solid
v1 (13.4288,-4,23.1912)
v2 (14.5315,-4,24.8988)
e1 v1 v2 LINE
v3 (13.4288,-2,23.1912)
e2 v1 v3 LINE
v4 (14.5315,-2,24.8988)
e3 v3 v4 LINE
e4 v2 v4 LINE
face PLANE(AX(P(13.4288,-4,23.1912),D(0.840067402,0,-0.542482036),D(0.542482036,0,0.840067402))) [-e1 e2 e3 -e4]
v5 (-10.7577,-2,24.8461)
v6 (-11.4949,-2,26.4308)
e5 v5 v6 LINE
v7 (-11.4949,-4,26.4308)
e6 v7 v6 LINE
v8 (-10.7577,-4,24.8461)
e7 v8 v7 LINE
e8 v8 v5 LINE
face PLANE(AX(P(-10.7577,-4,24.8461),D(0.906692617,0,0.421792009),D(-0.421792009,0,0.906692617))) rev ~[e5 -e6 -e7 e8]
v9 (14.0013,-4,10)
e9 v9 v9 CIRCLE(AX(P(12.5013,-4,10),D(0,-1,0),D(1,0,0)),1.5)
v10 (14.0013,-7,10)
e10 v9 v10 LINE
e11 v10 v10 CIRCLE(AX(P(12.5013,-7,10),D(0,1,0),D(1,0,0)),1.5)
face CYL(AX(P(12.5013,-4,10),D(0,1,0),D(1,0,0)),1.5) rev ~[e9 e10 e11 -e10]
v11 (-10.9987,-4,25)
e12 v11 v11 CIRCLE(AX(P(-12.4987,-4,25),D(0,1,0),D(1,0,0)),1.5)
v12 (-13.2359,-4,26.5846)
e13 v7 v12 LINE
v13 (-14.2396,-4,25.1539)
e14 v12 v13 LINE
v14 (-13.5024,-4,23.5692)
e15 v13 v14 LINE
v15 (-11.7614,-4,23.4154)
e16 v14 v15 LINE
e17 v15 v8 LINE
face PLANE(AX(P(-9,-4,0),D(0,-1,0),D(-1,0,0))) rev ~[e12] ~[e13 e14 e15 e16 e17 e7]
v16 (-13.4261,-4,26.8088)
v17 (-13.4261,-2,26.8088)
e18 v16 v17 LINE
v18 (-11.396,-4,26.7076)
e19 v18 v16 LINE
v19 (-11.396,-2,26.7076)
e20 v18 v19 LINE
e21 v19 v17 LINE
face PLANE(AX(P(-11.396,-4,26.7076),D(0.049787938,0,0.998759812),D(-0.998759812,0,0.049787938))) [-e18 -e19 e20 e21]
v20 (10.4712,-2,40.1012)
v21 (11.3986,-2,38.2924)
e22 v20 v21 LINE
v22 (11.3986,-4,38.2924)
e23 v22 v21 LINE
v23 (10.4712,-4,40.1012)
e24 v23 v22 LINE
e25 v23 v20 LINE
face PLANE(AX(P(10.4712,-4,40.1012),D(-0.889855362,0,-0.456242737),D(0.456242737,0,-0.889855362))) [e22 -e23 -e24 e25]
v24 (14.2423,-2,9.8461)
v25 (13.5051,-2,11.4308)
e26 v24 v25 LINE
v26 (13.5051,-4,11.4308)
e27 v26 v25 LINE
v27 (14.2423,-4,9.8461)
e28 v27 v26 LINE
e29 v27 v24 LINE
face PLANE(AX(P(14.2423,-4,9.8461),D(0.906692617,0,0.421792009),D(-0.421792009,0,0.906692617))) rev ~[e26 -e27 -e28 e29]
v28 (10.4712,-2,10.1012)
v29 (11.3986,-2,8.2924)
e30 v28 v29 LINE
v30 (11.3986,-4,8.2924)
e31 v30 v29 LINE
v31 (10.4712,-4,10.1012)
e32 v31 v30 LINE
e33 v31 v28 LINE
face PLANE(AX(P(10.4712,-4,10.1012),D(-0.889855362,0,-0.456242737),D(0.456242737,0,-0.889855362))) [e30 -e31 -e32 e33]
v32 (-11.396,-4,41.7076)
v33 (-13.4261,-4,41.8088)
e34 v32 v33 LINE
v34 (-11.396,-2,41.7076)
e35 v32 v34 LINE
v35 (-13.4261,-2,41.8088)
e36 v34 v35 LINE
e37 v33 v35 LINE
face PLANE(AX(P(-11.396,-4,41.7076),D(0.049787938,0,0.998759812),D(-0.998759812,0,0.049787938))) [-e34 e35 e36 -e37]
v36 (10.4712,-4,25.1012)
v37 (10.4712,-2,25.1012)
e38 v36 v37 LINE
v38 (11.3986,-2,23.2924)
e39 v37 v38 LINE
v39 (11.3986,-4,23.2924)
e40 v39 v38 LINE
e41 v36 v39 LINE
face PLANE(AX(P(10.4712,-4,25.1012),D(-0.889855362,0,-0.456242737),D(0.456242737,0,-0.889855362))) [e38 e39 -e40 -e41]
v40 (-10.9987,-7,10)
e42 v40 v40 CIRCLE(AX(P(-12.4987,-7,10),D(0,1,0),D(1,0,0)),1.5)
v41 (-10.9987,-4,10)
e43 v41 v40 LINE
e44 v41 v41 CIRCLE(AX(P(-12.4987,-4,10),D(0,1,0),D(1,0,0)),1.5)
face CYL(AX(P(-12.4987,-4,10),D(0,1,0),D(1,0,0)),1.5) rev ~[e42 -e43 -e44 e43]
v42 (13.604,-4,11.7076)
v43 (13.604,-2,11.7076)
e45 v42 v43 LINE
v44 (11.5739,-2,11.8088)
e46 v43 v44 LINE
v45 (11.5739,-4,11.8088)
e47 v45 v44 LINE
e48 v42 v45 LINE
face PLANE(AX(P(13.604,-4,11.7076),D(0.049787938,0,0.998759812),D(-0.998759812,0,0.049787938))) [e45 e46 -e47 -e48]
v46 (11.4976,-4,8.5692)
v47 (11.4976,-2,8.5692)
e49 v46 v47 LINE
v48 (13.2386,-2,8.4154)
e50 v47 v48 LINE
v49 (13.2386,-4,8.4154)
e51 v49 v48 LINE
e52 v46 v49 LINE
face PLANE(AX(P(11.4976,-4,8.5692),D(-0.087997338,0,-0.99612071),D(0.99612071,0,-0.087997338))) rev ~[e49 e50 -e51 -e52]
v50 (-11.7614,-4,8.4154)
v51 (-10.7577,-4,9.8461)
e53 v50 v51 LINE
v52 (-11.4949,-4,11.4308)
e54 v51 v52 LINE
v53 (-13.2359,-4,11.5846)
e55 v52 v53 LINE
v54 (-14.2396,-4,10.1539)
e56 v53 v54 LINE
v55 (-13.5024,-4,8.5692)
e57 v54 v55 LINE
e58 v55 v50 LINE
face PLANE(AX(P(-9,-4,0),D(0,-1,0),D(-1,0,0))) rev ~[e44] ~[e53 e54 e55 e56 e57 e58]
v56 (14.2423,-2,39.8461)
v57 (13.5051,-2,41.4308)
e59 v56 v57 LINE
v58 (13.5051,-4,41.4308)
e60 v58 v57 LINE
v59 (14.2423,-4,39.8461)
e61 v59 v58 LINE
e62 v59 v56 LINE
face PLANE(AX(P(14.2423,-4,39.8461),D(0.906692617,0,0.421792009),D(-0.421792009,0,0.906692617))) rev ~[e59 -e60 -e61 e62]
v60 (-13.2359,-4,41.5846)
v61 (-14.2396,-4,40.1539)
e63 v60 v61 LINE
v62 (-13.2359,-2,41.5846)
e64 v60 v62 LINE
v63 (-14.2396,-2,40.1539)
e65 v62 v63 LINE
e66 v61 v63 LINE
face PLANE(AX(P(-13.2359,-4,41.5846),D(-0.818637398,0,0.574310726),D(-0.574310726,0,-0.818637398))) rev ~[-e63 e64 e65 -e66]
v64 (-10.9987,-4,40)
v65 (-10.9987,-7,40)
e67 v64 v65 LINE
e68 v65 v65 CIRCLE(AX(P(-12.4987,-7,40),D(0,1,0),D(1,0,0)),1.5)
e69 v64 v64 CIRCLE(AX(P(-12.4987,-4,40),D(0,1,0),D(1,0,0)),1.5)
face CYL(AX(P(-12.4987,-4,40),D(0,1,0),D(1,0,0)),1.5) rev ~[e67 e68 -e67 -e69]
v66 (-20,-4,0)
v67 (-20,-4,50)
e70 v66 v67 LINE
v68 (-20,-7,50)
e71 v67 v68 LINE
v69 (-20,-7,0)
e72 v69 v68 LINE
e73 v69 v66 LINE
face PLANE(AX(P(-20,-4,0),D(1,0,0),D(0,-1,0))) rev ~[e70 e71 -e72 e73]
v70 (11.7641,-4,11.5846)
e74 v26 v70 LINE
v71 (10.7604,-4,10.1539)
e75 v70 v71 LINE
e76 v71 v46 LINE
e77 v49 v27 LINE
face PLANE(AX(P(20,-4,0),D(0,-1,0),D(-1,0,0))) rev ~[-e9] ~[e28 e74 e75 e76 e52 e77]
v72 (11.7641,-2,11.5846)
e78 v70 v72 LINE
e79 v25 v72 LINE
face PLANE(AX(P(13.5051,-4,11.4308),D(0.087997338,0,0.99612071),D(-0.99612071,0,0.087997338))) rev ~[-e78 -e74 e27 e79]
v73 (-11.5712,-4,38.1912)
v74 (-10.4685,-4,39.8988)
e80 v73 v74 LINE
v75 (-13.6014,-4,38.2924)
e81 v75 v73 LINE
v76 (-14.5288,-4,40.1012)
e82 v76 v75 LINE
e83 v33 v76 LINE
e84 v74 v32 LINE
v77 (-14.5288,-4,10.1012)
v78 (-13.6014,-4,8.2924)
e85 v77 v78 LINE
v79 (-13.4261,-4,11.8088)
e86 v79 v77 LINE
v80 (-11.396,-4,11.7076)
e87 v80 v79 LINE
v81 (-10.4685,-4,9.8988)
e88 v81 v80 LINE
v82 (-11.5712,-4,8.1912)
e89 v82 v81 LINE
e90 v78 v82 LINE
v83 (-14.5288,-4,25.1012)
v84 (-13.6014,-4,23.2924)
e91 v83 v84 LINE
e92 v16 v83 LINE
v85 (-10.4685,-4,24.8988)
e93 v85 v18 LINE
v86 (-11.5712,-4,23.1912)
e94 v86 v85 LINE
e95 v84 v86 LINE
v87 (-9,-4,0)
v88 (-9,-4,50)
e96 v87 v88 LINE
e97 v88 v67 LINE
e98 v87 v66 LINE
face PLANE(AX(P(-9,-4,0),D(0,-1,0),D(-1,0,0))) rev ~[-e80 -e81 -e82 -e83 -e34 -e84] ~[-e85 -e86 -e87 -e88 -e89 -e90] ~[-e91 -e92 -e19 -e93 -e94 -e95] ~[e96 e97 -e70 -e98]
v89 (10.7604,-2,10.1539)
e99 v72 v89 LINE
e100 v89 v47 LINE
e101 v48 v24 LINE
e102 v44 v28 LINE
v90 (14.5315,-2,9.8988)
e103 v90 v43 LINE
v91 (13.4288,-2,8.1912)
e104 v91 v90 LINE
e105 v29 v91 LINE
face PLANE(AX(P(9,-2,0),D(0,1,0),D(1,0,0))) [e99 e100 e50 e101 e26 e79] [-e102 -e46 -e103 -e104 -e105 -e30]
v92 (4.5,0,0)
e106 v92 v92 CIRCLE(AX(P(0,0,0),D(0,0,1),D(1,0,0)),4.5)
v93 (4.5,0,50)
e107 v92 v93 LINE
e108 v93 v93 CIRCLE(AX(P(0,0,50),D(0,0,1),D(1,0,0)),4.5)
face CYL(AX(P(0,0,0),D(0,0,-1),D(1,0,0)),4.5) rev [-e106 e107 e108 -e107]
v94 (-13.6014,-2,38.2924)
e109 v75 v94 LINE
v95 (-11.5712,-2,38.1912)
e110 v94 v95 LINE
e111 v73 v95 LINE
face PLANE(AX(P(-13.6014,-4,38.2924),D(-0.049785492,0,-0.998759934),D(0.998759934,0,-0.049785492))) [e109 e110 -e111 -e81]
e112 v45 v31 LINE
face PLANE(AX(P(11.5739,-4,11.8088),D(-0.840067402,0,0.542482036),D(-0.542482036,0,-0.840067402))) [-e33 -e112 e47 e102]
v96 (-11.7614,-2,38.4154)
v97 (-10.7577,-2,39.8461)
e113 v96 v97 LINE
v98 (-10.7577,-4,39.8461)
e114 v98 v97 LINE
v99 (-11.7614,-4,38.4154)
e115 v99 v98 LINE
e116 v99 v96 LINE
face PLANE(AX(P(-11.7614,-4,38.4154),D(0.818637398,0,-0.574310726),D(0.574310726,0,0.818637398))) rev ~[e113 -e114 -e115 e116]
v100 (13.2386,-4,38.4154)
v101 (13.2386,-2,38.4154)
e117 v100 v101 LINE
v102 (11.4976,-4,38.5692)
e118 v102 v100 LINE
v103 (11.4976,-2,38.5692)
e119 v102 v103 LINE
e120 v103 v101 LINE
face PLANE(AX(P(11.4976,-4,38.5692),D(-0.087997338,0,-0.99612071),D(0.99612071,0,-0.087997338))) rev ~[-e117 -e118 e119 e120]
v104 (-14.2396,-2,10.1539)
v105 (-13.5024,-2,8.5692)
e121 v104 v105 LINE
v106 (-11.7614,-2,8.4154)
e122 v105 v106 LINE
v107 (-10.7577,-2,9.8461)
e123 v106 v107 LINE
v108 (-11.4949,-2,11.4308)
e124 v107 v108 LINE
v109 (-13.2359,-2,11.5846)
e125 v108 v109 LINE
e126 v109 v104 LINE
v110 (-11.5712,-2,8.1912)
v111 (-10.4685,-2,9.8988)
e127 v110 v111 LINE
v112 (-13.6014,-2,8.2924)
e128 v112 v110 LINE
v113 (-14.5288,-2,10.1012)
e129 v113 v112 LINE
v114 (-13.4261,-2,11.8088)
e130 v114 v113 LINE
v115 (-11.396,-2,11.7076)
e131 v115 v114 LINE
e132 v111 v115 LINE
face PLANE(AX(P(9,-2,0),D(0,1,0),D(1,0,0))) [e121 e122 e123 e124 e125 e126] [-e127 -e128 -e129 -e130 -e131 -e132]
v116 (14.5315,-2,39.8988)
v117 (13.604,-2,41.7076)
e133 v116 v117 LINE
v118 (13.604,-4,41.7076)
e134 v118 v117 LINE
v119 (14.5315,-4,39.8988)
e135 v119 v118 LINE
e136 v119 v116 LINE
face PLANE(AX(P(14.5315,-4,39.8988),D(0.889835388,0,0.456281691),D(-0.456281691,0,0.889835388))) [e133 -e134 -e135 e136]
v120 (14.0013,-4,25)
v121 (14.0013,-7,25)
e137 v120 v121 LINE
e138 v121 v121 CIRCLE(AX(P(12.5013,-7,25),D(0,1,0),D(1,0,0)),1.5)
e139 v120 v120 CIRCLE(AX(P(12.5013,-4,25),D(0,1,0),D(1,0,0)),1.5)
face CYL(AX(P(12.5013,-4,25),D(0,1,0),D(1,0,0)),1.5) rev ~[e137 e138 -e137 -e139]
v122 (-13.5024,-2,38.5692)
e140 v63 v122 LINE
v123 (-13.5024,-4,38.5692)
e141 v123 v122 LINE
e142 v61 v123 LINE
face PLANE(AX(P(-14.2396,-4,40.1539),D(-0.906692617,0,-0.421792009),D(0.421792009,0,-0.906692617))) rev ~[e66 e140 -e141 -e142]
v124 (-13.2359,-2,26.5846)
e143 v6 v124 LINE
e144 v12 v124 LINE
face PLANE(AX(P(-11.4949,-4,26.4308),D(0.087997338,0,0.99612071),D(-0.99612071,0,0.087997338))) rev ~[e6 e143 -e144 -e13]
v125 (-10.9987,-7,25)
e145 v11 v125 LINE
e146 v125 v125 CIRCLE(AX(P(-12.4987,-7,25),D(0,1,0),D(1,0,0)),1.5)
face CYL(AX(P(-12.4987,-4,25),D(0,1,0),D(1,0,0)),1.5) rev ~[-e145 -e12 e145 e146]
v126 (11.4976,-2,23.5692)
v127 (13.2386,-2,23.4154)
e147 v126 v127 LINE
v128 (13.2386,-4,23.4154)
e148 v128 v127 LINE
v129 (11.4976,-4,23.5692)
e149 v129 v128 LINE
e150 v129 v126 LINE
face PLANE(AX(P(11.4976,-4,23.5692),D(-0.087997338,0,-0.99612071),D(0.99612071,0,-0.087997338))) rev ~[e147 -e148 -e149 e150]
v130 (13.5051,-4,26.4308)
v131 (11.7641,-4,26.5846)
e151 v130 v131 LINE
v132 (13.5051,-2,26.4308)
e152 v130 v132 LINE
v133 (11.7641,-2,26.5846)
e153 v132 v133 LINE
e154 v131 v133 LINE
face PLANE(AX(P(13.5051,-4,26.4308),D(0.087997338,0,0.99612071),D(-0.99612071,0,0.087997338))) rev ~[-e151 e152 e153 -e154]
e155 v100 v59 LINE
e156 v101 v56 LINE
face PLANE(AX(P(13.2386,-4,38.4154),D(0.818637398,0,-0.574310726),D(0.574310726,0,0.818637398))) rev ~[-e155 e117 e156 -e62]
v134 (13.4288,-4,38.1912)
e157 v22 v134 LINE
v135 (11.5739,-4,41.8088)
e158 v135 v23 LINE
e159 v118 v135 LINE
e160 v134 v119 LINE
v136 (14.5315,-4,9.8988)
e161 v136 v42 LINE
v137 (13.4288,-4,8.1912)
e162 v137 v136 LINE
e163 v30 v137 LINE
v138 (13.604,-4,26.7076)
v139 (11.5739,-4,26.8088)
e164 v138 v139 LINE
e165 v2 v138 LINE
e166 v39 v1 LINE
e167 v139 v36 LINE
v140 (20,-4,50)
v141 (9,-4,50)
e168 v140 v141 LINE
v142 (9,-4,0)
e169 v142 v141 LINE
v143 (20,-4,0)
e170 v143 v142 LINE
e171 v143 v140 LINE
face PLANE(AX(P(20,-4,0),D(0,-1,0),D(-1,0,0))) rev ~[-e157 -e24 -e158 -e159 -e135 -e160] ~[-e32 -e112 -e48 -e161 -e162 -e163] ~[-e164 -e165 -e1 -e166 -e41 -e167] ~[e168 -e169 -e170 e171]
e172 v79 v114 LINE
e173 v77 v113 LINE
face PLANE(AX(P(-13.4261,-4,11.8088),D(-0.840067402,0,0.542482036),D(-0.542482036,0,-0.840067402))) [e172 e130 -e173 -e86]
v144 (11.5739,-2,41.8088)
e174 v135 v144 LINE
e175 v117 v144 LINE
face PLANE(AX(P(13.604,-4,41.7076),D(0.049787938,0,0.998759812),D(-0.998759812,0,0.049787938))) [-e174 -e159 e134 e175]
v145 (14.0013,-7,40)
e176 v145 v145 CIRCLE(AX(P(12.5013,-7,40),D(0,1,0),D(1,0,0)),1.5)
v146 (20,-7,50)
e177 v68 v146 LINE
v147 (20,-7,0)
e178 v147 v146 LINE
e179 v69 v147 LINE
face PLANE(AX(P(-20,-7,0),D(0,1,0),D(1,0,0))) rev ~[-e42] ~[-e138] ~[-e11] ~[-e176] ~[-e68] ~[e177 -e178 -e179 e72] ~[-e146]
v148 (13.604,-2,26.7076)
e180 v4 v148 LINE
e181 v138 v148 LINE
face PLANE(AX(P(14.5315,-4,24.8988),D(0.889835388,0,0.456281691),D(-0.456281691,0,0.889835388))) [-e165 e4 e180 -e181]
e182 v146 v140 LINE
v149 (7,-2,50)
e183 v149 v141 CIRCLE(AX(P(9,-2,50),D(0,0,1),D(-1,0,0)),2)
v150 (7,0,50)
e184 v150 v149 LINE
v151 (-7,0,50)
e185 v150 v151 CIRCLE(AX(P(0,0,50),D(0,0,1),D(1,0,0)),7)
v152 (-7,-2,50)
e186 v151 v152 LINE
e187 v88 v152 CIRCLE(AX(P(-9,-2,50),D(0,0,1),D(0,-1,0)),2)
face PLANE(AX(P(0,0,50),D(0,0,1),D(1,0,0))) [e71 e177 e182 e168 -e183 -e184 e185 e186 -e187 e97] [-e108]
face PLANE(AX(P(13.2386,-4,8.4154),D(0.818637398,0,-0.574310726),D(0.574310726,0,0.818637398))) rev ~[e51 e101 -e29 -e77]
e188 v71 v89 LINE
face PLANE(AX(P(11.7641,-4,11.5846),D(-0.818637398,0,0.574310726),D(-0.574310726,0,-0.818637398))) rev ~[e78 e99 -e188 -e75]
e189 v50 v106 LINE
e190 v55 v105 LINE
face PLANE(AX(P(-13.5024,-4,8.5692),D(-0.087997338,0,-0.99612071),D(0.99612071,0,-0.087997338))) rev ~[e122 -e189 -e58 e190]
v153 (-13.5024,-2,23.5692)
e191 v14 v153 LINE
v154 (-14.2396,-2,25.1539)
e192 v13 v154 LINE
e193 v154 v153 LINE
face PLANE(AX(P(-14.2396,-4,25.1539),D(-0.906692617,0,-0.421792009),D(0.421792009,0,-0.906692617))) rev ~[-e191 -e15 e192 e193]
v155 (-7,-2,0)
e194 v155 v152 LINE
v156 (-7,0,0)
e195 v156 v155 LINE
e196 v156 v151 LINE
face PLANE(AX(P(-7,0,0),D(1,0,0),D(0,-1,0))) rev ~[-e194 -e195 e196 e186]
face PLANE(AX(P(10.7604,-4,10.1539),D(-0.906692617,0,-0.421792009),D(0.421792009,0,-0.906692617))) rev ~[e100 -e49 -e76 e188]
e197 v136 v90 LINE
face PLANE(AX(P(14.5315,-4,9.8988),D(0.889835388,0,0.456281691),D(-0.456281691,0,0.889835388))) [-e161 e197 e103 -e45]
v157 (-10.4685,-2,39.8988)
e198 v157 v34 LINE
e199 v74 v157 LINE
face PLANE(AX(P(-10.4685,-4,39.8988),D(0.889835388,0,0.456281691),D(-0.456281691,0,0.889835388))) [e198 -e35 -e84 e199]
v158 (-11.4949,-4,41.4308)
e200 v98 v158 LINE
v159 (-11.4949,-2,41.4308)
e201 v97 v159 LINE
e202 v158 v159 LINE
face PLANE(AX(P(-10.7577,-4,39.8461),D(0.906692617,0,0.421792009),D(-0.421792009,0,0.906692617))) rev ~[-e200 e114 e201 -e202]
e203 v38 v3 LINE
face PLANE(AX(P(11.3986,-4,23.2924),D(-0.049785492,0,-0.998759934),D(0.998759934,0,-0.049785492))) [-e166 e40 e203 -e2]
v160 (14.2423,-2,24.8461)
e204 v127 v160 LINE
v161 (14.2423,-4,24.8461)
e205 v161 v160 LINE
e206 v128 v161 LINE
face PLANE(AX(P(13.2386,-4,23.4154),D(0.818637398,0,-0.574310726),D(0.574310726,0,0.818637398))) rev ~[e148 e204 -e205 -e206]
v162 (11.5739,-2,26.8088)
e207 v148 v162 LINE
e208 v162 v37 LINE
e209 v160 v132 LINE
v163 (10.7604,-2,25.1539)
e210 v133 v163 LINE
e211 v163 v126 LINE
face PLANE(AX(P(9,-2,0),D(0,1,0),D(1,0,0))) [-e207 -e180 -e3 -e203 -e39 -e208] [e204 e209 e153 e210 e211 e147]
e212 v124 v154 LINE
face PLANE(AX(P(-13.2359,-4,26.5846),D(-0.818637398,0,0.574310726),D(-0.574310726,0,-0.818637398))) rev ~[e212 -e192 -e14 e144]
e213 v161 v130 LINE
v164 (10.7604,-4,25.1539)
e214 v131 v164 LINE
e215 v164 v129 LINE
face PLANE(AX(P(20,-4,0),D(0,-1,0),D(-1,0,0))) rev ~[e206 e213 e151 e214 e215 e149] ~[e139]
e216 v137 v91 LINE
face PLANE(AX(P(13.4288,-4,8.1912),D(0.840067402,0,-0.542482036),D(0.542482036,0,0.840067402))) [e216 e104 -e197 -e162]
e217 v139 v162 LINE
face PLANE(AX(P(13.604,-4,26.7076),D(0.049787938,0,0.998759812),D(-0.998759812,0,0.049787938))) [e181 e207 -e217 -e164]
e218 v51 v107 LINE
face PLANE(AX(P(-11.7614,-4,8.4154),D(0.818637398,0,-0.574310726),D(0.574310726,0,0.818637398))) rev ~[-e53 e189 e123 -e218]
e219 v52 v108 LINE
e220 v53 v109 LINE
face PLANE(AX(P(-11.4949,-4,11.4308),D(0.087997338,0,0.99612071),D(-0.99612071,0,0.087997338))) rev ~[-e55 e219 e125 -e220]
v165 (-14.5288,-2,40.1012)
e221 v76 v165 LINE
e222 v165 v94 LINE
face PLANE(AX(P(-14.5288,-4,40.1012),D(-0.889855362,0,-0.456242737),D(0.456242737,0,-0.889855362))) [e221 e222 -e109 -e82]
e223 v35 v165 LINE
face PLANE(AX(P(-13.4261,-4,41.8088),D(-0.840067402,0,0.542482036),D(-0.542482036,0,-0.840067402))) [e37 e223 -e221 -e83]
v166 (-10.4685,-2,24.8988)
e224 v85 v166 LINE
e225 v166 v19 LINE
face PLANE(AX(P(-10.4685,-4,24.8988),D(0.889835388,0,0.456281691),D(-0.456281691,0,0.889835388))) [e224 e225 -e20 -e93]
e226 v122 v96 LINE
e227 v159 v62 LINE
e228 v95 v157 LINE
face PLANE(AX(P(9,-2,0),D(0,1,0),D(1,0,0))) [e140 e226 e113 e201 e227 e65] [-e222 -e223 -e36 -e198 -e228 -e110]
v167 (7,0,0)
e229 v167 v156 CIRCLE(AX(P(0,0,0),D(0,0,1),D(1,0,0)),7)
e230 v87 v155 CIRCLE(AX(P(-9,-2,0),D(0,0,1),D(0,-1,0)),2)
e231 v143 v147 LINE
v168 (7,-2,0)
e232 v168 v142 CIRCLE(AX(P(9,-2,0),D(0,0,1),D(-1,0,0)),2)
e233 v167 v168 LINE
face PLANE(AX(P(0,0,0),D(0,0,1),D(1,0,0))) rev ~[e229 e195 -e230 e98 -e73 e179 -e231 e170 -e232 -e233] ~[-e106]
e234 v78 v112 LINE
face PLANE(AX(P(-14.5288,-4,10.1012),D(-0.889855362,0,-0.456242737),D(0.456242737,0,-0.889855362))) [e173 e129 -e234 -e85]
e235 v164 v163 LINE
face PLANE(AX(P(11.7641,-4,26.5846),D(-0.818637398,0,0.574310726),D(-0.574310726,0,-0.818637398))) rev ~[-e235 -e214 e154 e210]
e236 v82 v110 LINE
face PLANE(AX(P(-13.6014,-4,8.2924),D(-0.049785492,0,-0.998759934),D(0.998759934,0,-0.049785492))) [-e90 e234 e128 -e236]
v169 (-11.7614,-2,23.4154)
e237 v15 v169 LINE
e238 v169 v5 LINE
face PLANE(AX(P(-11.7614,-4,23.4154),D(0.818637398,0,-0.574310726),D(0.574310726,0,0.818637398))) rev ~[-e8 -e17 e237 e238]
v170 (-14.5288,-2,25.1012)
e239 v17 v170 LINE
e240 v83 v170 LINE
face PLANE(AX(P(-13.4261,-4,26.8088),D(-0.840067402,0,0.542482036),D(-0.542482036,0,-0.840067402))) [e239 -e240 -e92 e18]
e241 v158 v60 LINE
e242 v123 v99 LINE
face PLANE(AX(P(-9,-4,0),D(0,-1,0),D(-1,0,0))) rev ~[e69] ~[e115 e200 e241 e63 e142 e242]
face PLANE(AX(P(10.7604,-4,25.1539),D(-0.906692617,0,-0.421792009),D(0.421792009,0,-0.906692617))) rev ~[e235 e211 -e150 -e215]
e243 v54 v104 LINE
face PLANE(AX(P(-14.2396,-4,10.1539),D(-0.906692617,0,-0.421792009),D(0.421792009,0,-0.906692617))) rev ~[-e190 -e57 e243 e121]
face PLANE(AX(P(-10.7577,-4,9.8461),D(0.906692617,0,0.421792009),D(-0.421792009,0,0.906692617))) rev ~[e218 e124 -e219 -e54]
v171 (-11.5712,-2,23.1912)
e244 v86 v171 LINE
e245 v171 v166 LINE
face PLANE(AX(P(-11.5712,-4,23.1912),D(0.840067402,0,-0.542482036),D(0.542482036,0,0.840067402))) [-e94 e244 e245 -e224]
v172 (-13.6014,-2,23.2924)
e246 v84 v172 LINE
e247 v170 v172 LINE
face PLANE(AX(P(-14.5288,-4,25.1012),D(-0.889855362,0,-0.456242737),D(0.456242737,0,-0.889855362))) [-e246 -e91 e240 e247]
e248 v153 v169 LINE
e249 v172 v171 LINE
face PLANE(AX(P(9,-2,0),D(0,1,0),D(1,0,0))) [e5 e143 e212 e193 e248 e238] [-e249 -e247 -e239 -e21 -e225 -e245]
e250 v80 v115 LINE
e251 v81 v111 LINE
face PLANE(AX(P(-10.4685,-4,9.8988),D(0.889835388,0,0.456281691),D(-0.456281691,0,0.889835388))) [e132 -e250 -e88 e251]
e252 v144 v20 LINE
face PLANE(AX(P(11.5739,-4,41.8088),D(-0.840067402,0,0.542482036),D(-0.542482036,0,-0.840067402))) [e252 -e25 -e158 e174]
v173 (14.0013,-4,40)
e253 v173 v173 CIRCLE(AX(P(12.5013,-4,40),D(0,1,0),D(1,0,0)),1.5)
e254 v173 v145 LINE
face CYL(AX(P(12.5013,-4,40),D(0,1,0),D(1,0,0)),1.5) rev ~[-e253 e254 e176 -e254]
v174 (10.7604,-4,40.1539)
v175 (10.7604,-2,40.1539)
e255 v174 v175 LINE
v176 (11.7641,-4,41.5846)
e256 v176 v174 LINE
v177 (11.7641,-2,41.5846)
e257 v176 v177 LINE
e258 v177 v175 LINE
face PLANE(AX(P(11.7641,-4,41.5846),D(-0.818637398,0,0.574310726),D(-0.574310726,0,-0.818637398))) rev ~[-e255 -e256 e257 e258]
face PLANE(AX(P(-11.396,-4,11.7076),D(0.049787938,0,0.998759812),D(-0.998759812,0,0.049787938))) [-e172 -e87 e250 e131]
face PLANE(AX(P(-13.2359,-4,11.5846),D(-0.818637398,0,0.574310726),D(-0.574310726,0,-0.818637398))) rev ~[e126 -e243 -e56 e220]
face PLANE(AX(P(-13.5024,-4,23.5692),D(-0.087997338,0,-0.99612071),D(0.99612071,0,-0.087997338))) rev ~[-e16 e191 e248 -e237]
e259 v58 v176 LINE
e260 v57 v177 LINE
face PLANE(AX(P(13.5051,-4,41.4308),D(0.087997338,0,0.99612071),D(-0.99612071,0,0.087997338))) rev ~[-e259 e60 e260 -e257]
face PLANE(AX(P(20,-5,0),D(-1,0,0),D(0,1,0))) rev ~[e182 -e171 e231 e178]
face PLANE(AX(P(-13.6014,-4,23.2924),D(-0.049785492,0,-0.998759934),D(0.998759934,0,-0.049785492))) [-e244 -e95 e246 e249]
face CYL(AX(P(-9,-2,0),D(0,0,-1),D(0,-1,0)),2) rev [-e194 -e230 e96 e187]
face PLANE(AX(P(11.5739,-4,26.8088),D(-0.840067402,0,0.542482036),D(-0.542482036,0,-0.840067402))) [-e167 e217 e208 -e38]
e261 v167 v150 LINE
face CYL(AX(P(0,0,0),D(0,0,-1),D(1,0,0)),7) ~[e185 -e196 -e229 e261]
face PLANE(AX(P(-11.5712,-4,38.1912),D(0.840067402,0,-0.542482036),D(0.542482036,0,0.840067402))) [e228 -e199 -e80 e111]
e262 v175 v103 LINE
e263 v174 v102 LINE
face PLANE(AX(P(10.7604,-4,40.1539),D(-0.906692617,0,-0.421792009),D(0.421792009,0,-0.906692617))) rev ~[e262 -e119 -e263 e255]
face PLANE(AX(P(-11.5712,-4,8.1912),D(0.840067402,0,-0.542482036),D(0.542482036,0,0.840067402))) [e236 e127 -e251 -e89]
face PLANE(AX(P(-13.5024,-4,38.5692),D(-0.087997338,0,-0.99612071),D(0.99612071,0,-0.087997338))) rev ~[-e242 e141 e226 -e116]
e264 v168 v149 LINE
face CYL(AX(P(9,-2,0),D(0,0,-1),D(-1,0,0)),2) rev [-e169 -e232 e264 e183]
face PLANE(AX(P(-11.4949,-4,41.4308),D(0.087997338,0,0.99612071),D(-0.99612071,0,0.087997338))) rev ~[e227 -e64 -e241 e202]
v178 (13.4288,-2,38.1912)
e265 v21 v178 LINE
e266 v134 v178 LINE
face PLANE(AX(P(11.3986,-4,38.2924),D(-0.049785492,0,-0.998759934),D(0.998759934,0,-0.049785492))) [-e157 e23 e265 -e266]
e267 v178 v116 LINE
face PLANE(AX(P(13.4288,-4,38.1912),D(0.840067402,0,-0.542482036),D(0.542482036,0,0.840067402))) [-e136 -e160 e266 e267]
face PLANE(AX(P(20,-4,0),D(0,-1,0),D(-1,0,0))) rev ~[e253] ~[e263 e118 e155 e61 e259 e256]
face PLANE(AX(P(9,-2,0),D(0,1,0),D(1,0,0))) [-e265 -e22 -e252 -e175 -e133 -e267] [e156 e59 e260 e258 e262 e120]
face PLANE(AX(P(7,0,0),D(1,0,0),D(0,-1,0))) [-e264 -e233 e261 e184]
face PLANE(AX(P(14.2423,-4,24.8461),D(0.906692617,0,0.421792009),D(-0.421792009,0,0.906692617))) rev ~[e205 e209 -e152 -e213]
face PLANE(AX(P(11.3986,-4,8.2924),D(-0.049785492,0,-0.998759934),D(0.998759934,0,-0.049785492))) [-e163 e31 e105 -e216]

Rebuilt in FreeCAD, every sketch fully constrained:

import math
import FreeCAD as App
import Part
import Sketcher

V = App.Vector
Q = App.Units.Quantity

doc = App.newDocument("Part")
body = doc.addObject("PartDesign::Body", "Body")

# Sketch on XY plane
sketch1 = body.newObject("Sketcher::SketchObject", "Sketch")
sketch1.AttachmentSupport = (doc.getObject("XY_Plane"), [""])
sketch1.MapMode = "FlatFace"
sketch1.addGeometry([
    Part.ArcOfCircle(Part.Circle(V(-9, -2, 0), V(0, 0, 1), 2), math.radians(-90), math.radians(0)),  # 0
    Part.LineSegment(V(-9, -4, 0), V(-20, -4, 0)),  # 1
    Part.LineSegment(V(-20, -4, 0), V(-20, -7, 0)),  # 2
    Part.LineSegment(V(-20, -7, 0), V(20, -7, 0)),  # 3
    Part.LineSegment(V(20, -7, 0), V(20, -4, 0)),  # 4
    Part.LineSegment(V(20, -4, 0), V(9, -4, 0)),  # 5
    Part.ArcOfCircle(Part.Circle(V(9, -2, 0), V(0, 0, 1), 2), math.radians(180), math.radians(270)),  # 6
    Part.LineSegment(V(7, -2, 0), V(7, 0, 0)),  # 7
    Part.ArcOfCircle(Part.Circle(V(0, 0, 0), V(0, 0, 1), 7), math.radians(0), math.radians(180)),  # 8
    Part.LineSegment(V(-7, 0, 0), V(-7, -2, 0)),  # 9
    Part.Circle(V(0, 0, 0), V(0, 0, 1), 4.5),  # 10
], False)
sketch1.addConstraint([
    Sketcher.Constraint("Tangent", 0, 1, 1, 1),
    Sketcher.Constraint("Coincident", 1, 2, 2, 1),
    Sketcher.Constraint("Coincident", 2, 2, 3, 1),
    Sketcher.Constraint("Coincident", 3, 2, 4, 1),
    Sketcher.Constraint("Coincident", 4, 2, 5, 1),
    Sketcher.Constraint("Tangent", 5, 2, 6, 2),
    Sketcher.Constraint("Tangent", 6, 1, 7, 1),
    Sketcher.Constraint("Tangent", 7, 2, 8, 1),
    Sketcher.Constraint("Tangent", 8, 2, 9, 1),
    Sketcher.Constraint("Tangent", 9, 2, 0, 2),
    Sketcher.Constraint("Horizontal", 1),
    Sketcher.Constraint("Vertical", 2),
    Sketcher.Constraint("Horizontal", 3),
    Sketcher.Constraint("Vertical", 4),
    Sketcher.Constraint("Horizontal", 5),
    Sketcher.Constraint("Vertical", 7),
    Sketcher.Constraint("Vertical", 9),
    Sketcher.Constraint("Coincident", 8, 3, -1, 1),
    Sketcher.Constraint("Coincident", 10, 3, -1, 1),
    Sketcher.Constraint("Equal", 0, 6),
    Sketcher.Constraint("Symmetric", 1, 2, 4, 2, -2),
    Sketcher.Constraint("Diameter", 10, Q("9 mm")),
    Sketcher.Constraint("Radius", 0, Q("2 mm")),
    Sketcher.Constraint("Radius", 8, Q("7 mm")),
    Sketcher.Constraint("DistanceY", 7, 1, 7, 2, Q("2 mm")),
    Sketcher.Constraint("DistanceX", 1, 2, 1, 1, Q("11 mm")),
    Sketcher.Constraint("DistanceY", 2, 2, 2, 1, Q("3 mm")),
])
pad1 = body.newObject("PartDesign::Pad", "Pad")
pad1.Profile = sketch1
pad1.Length = 50

# Sketch on XZ plane
sketch2 = body.newObject("Sketcher::SketchObject", "Sketch001")
sketch2.AttachmentSupport = (doc.getObject("XZ_Plane"), [""])
sketch2.MapMode = "FlatFace"
sketch2.AttachmentOffset = App.Placement(V(0, 0, 4), App.Rotation())
sketch2.addGeometry(Part.Circle(V(-12.5, 10, 0), V(0, 0, 1), 1.5), False)
sketch2.addConstraint([
    Sketcher.Constraint("Diameter", 0, Q("3 mm")),
    Sketcher.Constraint("DistanceY", -1, 1, 0, 3, Q("10 mm")),
    Sketcher.Constraint("DistanceX", 0, 3, -1, 1, Q("12.4987 mm")),
])
pocket1 = body.newObject("PartDesign::Pocket", "Pocket")
pocket1.Profile = sketch2
pocket1.Length = 3
pocket1.Reversed = True

# Sketch on XZ plane
sketch3 = body.newObject("Sketcher::SketchObject", "Sketch002")
sketch3.AttachmentSupport = (doc.getObject("XZ_Plane"), [""])
sketch3.MapMode = "FlatFace"
sketch3.AttachmentOffset = App.Placement(V(0, 0, 4), App.Rotation())
sketch3.addGeometry([
    Part.Circle(V(-12.5, 25, 0), V(0, 0, 1), 1.5),  # 0
    Part.Circle(V(-12.5, 40, 0), V(0, 0, 1), 1.5),  # 1
    Part.Circle(V(12.5, 10, 0), V(0, 0, 1), 1.5),  # 2
    Part.Circle(V(12.5, 25, 0), V(0, 0, 1), 1.5),  # 3
    Part.Circle(V(12.5, 40, 0), V(0, 0, 1), 1.5),  # 4
], False)
sketch3.addConstraint([
    Sketcher.Constraint("Equal", 0, 1),
    Sketcher.Constraint("Equal", 1, 2),
    Sketcher.Constraint("Equal", 2, 3),
    Sketcher.Constraint("Equal", 3, 4),
    Sketcher.Constraint("Horizontal", 0, 3, 3, 3),
    Sketcher.Constraint("Horizontal", 1, 3, 4, 3),
    Sketcher.Constraint("Vertical", 0, 3, 1, 3),
    Sketcher.Constraint("Vertical", 2, 3, 3, 3),
    Sketcher.Constraint("Vertical", 3, 3, 4, 3),
    Sketcher.Constraint("Diameter", 0, Q("3 mm")),
    Sketcher.Constraint("DistanceY", -1, 1, 0, 3, Q("25 mm")),
    Sketcher.Constraint("DistanceY", 0, 3, 1, 3, Q("15 mm")),
    Sketcher.Constraint("DistanceX", 0, 3, 2, 3, Q("25 mm")),
    Sketcher.Constraint("DistanceY", 2, 3, 0, 3, Q("15 mm")),
    Sketcher.Constraint("DistanceX", 0, 3, -1, 1, Q("12.4987 mm")),
])
pocket2 = body.newObject("PartDesign::Pocket", "Pocket001")
pocket2.Profile = sketch3
pocket2.Length = 3
pocket2.Reversed = True

# Sketch on XZ plane
sketch4 = body.newObject("Sketcher::SketchObject", "Sketch003")
sketch4.AttachmentSupport = (doc.getObject("XZ_Plane"), [""])
sketch4.MapMode = "FlatFace"
sketch4.AttachmentOffset = App.Placement(V(0, 0, 4), App.Rotation())
sketch4.addGeometry([
    Part.LineSegment(V(13.4288, 8.1912, 0), V(11.3986, 8.2924, 0)),  # 0
    Part.LineSegment(V(11.3986, 8.2924, 0), V(10.4712, 10.1012, 0)),  # 1
    Part.LineSegment(V(10.4712, 10.1012, 0), V(11.5739, 11.8088, 0)),  # 2
    Part.LineSegment(V(11.5739, 11.8088, 0), V(13.604, 11.7076, 0)),  # 3
    Part.LineSegment(V(13.604, 11.7076, 0), V(14.5315, 9.8988, 0)),  # 4
    Part.LineSegment(V(14.5315, 9.8988, 0), V(13.4288, 8.1912, 0)),  # 5
    Part.LineSegment(V(13.2386, 8.4154, 0), V(14.2423, 9.8461, 0)),  # 6
    Part.LineSegment(V(14.2423, 9.8461, 0), V(13.5051, 11.4308, 0)),  # 7
    Part.LineSegment(V(13.5051, 11.4308, 0), V(11.7641, 11.5846, 0)),  # 8
    Part.LineSegment(V(11.7641, 11.5846, 0), V(10.7604, 10.1539, 0)),  # 9
    Part.LineSegment(V(10.7604, 10.1539, 0), V(11.4976, 8.5692, 0)),  # 10
    Part.LineSegment(V(11.4976, 8.5692, 0), V(13.2386, 8.4154, 0)),  # 11
    Part.LineSegment(V(11.3986, 23.2924, 0), V(10.4712, 25.1012, 0)),  # 12
    Part.LineSegment(V(10.4712, 25.1012, 0), V(11.5739, 26.8088, 0)),  # 13
    Part.LineSegment(V(11.5739, 26.8088, 0), V(13.604, 26.7076, 0)),  # 14
    Part.LineSegment(V(13.604, 26.7076, 0), V(14.5315, 24.8988, 0)),  # 15
    Part.LineSegment(V(14.5315, 24.8988, 0), V(13.4288, 23.1912, 0)),  # 16
    Part.LineSegment(V(13.4288, 23.1912, 0), V(11.3986, 23.2924, 0)),  # 17
    Part.LineSegment(V(11.4976, 23.5692, 0), V(13.2386, 23.4154, 0)),  # 18
    Part.LineSegment(V(13.2386, 23.4154, 0), V(14.2423, 24.8461, 0)),  # 19
    Part.LineSegment(V(14.2423, 24.8461, 0), V(13.5051, 26.4308, 0)),  # 20
    Part.LineSegment(V(13.5051, 26.4308, 0), V(11.7641, 26.5846, 0)),  # 21
    Part.LineSegment(V(11.7641, 26.5846, 0), V(10.7604, 25.1539, 0)),  # 22
    Part.LineSegment(V(10.7604, 25.1539, 0), V(11.4976, 23.5692, 0)),  # 23
    Part.LineSegment(V(11.3986, 38.2924, 0), V(10.4712, 40.1012, 0)),  # 24
    Part.LineSegment(V(10.4712, 40.1012, 0), V(11.5739, 41.8088, 0)),  # 25
    Part.LineSegment(V(11.5739, 41.8088, 0), V(13.604, 41.7076, 0)),  # 26
    Part.LineSegment(V(13.604, 41.7076, 0), V(14.5315, 39.8988, 0)),  # 27
    Part.LineSegment(V(14.5315, 39.8988, 0), V(13.4288, 38.1912, 0)),  # 28
    Part.LineSegment(V(13.4288, 38.1912, 0), V(11.3986, 38.2924, 0)),  # 29
    Part.LineSegment(V(11.4976, 38.5692, 0), V(13.2386, 38.4154, 0)),  # 30
    Part.LineSegment(V(13.2386, 38.4154, 0), V(14.2423, 39.8461, 0)),  # 31
    Part.LineSegment(V(14.2423, 39.8461, 0), V(13.5051, 41.4308, 0)),  # 32
    Part.LineSegment(V(13.5051, 41.4308, 0), V(11.7641, 41.5846, 0)),  # 33
    Part.LineSegment(V(11.7641, 41.5846, 0), V(10.7604, 40.1539, 0)),  # 34
    Part.LineSegment(V(10.7604, 40.1539, 0), V(11.4976, 38.5692, 0)),  # 35
    Part.LineSegment(V(-13.6014, 8.2924, 0), V(-14.5288, 10.1012, 0)),  # 36
    Part.LineSegment(V(-14.5288, 10.1012, 0), V(-13.4261, 11.8088, 0)),  # 37
    Part.LineSegment(V(-13.4261, 11.8088, 0), V(-11.396, 11.7076, 0)),  # 38
    Part.LineSegment(V(-11.396, 11.7076, 0), V(-10.4685, 9.8988, 0)),  # 39
    Part.LineSegment(V(-10.4685, 9.8988, 0), V(-11.5712, 8.1912, 0)),  # 40
    Part.LineSegment(V(-11.5712, 8.1912, 0), V(-13.6014, 8.2924, 0)),  # 41
    Part.LineSegment(V(-13.5024, 8.5692, 0), V(-11.7614, 8.4154, 0)),  # 42
    Part.LineSegment(V(-11.7614, 8.4154, 0), V(-10.7577, 9.8461, 0)),  # 43
    Part.LineSegment(V(-10.7577, 9.8461, 0), V(-11.4949, 11.4308, 0)),  # 44
    Part.LineSegment(V(-11.4949, 11.4308, 0), V(-13.2359, 11.5846, 0)),  # 45
    Part.LineSegment(V(-13.2359, 11.5846, 0), V(-14.2396, 10.1539, 0)),  # 46
    Part.LineSegment(V(-14.2396, 10.1539, 0), V(-13.5024, 8.5692, 0)),  # 47
    Part.LineSegment(V(-13.6014, 23.2924, 0), V(-14.5288, 25.1012, 0)),  # 48
    Part.LineSegment(V(-14.5288, 25.1012, 0), V(-13.4261, 26.8088, 0)),  # 49
    Part.LineSegment(V(-13.4261, 26.8088, 0), V(-11.396, 26.7076, 0)),  # 50
    Part.LineSegment(V(-11.396, 26.7076, 0), V(-10.4685, 24.8988, 0)),  # 51
    Part.LineSegment(V(-10.4685, 24.8988, 0), V(-11.5712, 23.1912, 0)),  # 52
    Part.LineSegment(V(-11.5712, 23.1912, 0), V(-13.6014, 23.2924, 0)),  # 53
    Part.LineSegment(V(-13.5024, 23.5692, 0), V(-11.7614, 23.4154, 0)),  # 54
    Part.LineSegment(V(-11.7614, 23.4154, 0), V(-10.7577, 24.8461, 0)),  # 55
    Part.LineSegment(V(-10.7577, 24.8461, 0), V(-11.4949, 26.4308, 0)),  # 56
    Part.LineSegment(V(-11.4949, 26.4308, 0), V(-13.2359, 26.5846, 0)),  # 57
    Part.LineSegment(V(-13.2359, 26.5846, 0), V(-14.2396, 25.1539, 0)),  # 58
    Part.LineSegment(V(-14.2396, 25.1539, 0), V(-13.5024, 23.5692, 0)),  # 59
    Part.LineSegment(V(-13.6014, 38.2924, 0), V(-14.5288, 40.1012, 0)),  # 60
    Part.LineSegment(V(-14.5288, 40.1012, 0), V(-13.4261, 41.8088, 0)),  # 61
    Part.LineSegment(V(-13.4261, 41.8088, 0), V(-11.396, 41.7076, 0)),  # 62
    Part.LineSegment(V(-11.396, 41.7076, 0), V(-10.4685, 39.8988, 0)),  # 63
    Part.LineSegment(V(-10.4685, 39.8988, 0), V(-11.5712, 38.1912, 0)),  # 64
    Part.LineSegment(V(-11.5712, 38.1912, 0), V(-13.6014, 38.2924, 0)),  # 65
    Part.LineSegment(V(-13.5024, 38.5692, 0), V(-11.7614, 38.4154, 0)),  # 66
    Part.LineSegment(V(-11.7614, 38.4154, 0), V(-10.7577, 39.8461, 0)),  # 67
    Part.LineSegment(V(-10.7577, 39.8461, 0), V(-11.4949, 41.4308, 0)),  # 68
    Part.LineSegment(V(-11.4949, 41.4308, 0), V(-13.2359, 41.5846, 0)),  # 69
    Part.LineSegment(V(-13.2359, 41.5846, 0), V(-14.2396, 40.1539, 0)),  # 70
    Part.LineSegment(V(-14.2396, 40.1539, 0), V(-13.5024, 38.5692, 0)),  # 71
], False)
sketch4.addConstraint([
    Sketcher.Constraint("Coincident", 0, 2, 1, 1),
    Sketcher.Constraint("Coincident", 1, 2, 2, 1),
    Sketcher.Constraint("Coincident", 2, 2, 3, 1),
    Sketcher.Constraint("Coincident", 3, 2, 4, 1),
    Sketcher.Constraint("Coincident", 4, 2, 5, 1),
    Sketcher.Constraint("Coincident", 5, 2, 0, 1),
    Sketcher.Constraint("Coincident", 6, 2, 7, 1),
    Sketcher.Constraint("Coincident", 7, 2, 8, 1),
    Sketcher.Constraint("Coincident", 8, 2, 9, 1),
    Sketcher.Constraint("Coincident", 9, 2, 10, 1),
    Sketcher.Constraint("Coincident", 10, 2, 11, 1),
    Sketcher.Constraint("Coincident", 11, 2, 6, 1),
    Sketcher.Constraint("Coincident", 12, 2, 13, 1),
    Sketcher.Constraint("Coincident", 13, 2, 14, 1),
    Sketcher.Constraint("Coincident", 14, 2, 15, 1),
    Sketcher.Constraint("Coincident", 15, 2, 16, 1),
    Sketcher.Constraint("Coincident", 16, 2, 17, 1),
    Sketcher.Constraint("Coincident", 17, 2, 12, 1),
    Sketcher.Constraint("Coincident", 18, 2, 19, 1),
    Sketcher.Constraint("Coincident", 19, 2, 20, 1),
    Sketcher.Constraint("Coincident", 20, 2, 21, 1),
    Sketcher.Constraint("Coincident", 21, 2, 22, 1),
    Sketcher.Constraint("Coincident", 22, 2, 23, 1),
    Sketcher.Constraint("Coincident", 23, 2, 18, 1),
    Sketcher.Constraint("Coincident", 24, 2, 25, 1),
    Sketcher.Constraint("Coincident", 25, 2, 26, 1),
    Sketcher.Constraint("Coincident", 26, 2, 27, 1),
    Sketcher.Constraint("Coincident", 27, 2, 28, 1),
    Sketcher.Constraint("Coincident", 28, 2, 29, 1),
    Sketcher.Constraint("Coincident", 29, 2, 24, 1),
    Sketcher.Constraint("Coincident", 30, 2, 31, 1),
    Sketcher.Constraint("Coincident", 31, 2, 32, 1),
    Sketcher.Constraint("Coincident", 32, 2, 33, 1),
    Sketcher.Constraint("Coincident", 33, 2, 34, 1),
    Sketcher.Constraint("Coincident", 34, 2, 35, 1),
    Sketcher.Constraint("Coincident", 35, 2, 30, 1),
    Sketcher.Constraint("Coincident", 36, 2, 37, 1),
    Sketcher.Constraint("Coincident", 37, 2, 38, 1),
    Sketcher.Constraint("Coincident", 38, 2, 39, 1),
    Sketcher.Constraint("Coincident", 39, 2, 40, 1),
    Sketcher.Constraint("Coincident", 40, 2, 41, 1),
    Sketcher.Constraint("Coincident", 41, 2, 36, 1),
    Sketcher.Constraint("Coincident", 42, 2, 43, 1),
    Sketcher.Constraint("Coincident", 43, 2, 44, 1),
    Sketcher.Constraint("Coincident", 44, 2, 45, 1),
    Sketcher.Constraint("Coincident", 45, 2, 46, 1),
    Sketcher.Constraint("Coincident", 46, 2, 47, 1),
    Sketcher.Constraint("Coincident", 47, 2, 42, 1),
    Sketcher.Constraint("Coincident", 48, 2, 49, 1),
    Sketcher.Constraint("Coincident", 49, 2, 50, 1),
    Sketcher.Constraint("Coincident", 50, 2, 51, 1),
    Sketcher.Constraint("Coincident", 51, 2, 52, 1),
    Sketcher.Constraint("Coincident", 52, 2, 53, 1),
    Sketcher.Constraint("Coincident", 53, 2, 48, 1),
    Sketcher.Constraint("Coincident", 54, 2, 55, 1),
    Sketcher.Constraint("Coincident", 55, 2, 56, 1),
    Sketcher.Constraint("Coincident", 56, 2, 57, 1),
    Sketcher.Constraint("Coincident", 57, 2, 58, 1),
    Sketcher.Constraint("Coincident", 58, 2, 59, 1),
    Sketcher.Constraint("Coincident", 59, 2, 54, 1),
    Sketcher.Constraint("Coincident", 60, 2, 61, 1),
    Sketcher.Constraint("Coincident", 61, 2, 62, 1),
    Sketcher.Constraint("Coincident", 62, 2, 63, 1),
    Sketcher.Constraint("Coincident", 63, 2, 64, 1),
    Sketcher.Constraint("Coincident", 64, 2, 65, 1),
    Sketcher.Constraint("Coincident", 65, 2, 60, 1),
    Sketcher.Constraint("Coincident", 66, 2, 67, 1),
    Sketcher.Constraint("Coincident", 67, 2, 68, 1),
    Sketcher.Constraint("Coincident", 68, 2, 69, 1),
    Sketcher.Constraint("Coincident", 69, 2, 70, 1),
    Sketcher.Constraint("Coincident", 70, 2, 71, 1),
    Sketcher.Constraint("Coincident", 71, 2, 66, 1),
    Sketcher.Constraint("DistanceX", -1, 1, 2, 2, Q("11.574 mm")),
    Sketcher.Constraint("DistanceX", -1, 1, 3, 2, Q("13.604 mm")),
    Sketcher.Constraint("DistanceY", -1, 1, 6, 2, Q("9.846 mm")),
    Sketcher.Constraint("DistanceX", -1, 1, 7, 2, Q("13.505 mm")),
    Sketcher.Constraint("DistanceX", -1, 1, 8, 2, Q("11.764 mm")),
    Sketcher.Constraint("DistanceY", -1, 1, 9, 2, Q("10.154 mm")),
    Sketcher.Constraint("DistanceX", -1, 1, 13, 2, Q("11.574 mm")),
    Sketcher.Constraint("DistanceX", -1, 1, 14, 2, Q("13.604 mm")),
    Sketcher.Constraint("DistanceY", -1, 1, 19, 2, Q("24.846 mm")),
    Sketcher.Constraint("DistanceX", -1, 1, 20, 2, Q("13.505 mm")),
    Sketcher.Constraint("DistanceX", -1, 1, 21, 2, Q("11.764 mm")),
    Sketcher.Constraint("DistanceY", -1, 1, 22, 2, Q("25.154 mm")),
    Sketcher.Constraint("DistanceX", -1, 1, 25, 2, Q("11.574 mm")),
    Sketcher.Constraint("DistanceX", -1, 1, 26, 2, Q("13.604 mm")),
    Sketcher.Constraint("DistanceY", -1, 1, 31, 2, Q("39.846 mm")),
    Sketcher.Constraint("DistanceX", -1, 1, 32, 2, Q("13.505 mm")),
    Sketcher.Constraint("DistanceX", -1, 1, 33, 2, Q("11.764 mm")),
    Sketcher.Constraint("DistanceY", -1, 1, 34, 2, Q("40.154 mm")),
    Sketcher.Constraint("DistanceX", 37, 2, -1, 1, Q("13.426 mm")),
    Sketcher.Constraint("DistanceX", 38, 2, -1, 1, Q("11.396 mm")),
    Sketcher.Constraint("DistanceY", -1, 1, 43, 2, Q("9.846 mm")),
    Sketcher.Constraint("DistanceX", 44, 2, -1, 1, Q("11.495 mm")),
    Sketcher.Constraint("DistanceX", 45, 2, -1, 1, Q("13.236 mm")),
    Sketcher.Constraint("DistanceY", -1, 1, 46, 2, Q("10.154 mm")),
    Sketcher.Constraint("DistanceX", 49, 2, -1, 1, Q("13.426 mm")),
    Sketcher.Constraint("DistanceX", 50, 2, -1, 1, Q("11.396 mm")),
    Sketcher.Constraint("DistanceY", -1, 1, 55, 2, Q("24.846 mm")),
    Sketcher.Constraint("DistanceX", 56, 2, -1, 1, Q("11.495 mm")),
    Sketcher.Constraint("DistanceX", 57, 2, -1, 1, Q("13.236 mm")),
    Sketcher.Constraint("DistanceY", -1, 1, 58, 2, Q("25.154 mm")),
    Sketcher.Constraint("DistanceX", 61, 2, -1, 1, Q("13.426 mm")),
    Sketcher.Constraint("DistanceX", 62, 2, -1, 1, Q("11.396 mm")),
    Sketcher.Constraint("DistanceY", -1, 1, 67, 2, Q("39.846 mm")),
    Sketcher.Constraint("DistanceX", 68, 2, -1, 1, Q("11.495 mm")),
    Sketcher.Constraint("DistanceX", 69, 2, -1, 1, Q("13.236 mm")),
    Sketcher.Constraint("DistanceY", -1, 1, 70, 2, Q("40.154 mm")),
    Sketcher.Constraint("Distance", 0, Q("2.0327 mm")),
    Sketcher.Constraint("Distance", 1, Q("2.0327 mm")),
    Sketcher.Constraint("Distance", 2, Q("2.0327 mm")),
    Sketcher.Constraint("Distance", 3, Q("2.0326 mm")),
    Sketcher.Constraint("Distance", 4, Q("2.0327 mm")),
    Sketcher.Constraint("Distance", 5, Q("2.0327 mm")),
    Sketcher.Constraint("Distance", 6, Q("1.7477 mm")),
    Sketcher.Constraint("Distance", 7, Q("1.7478 mm")),
    Sketcher.Constraint("Distance", 8, Q("1.7478 mm")),
    Sketcher.Constraint("Distance", 9, Q("1.7477 mm")),
    Sketcher.Constraint("Distance", 10, Q("1.7478 mm")),
    Sketcher.Constraint("Distance", 11, Q("1.7478 mm")),
    Sketcher.Constraint("Distance", 12, Q("2.0327 mm")),
    Sketcher.Constraint("Distance", 13, Q("2.0327 mm")),
    Sketcher.Constraint("Distance", 14, Q("2.0326 mm")),
    Sketcher.Constraint("Distance", 15, Q("2.0327 mm")),
    Sketcher.Constraint("Distance", 16, Q("2.0327 mm")),
    Sketcher.Constraint("Distance", 17, Q("2.0327 mm")),
    Sketcher.Constraint("Distance", 18, Q("1.7478 mm")),
    Sketcher.Constraint("Distance", 19, Q("1.7477 mm")),
    Sketcher.Constraint("Distance", 20, Q("1.7478 mm")),
    Sketcher.Constraint("Distance", 21, Q("1.7478 mm")),
    Sketcher.Constraint("Distance", 22, Q("1.7477 mm")),
    Sketcher.Constraint("Distance", 23, Q("1.7478 mm")),
    Sketcher.Constraint("Distance", 24, Q("2.0327 mm")),
    Sketcher.Constraint("Distance", 25, Q("2.0327 mm")),
    Sketcher.Constraint("Distance", 26, Q("2.0326 mm")),
    Sketcher.Constraint("Distance", 27, Q("2.0327 mm")),
    Sketcher.Constraint("Distance", 28, Q("2.0327 mm")),
    Sketcher.Constraint("Distance", 29, Q("2.0327 mm")),
    Sketcher.Constraint("Distance", 30, Q("1.7478 mm")),
    Sketcher.Constraint("Distance", 31, Q("1.7477 mm")),
    Sketcher.Constraint("Distance", 32, Q("1.7478 mm")),
    Sketcher.Constraint("Distance", 33, Q("1.7478 mm")),
    Sketcher.Constraint("Distance", 34, Q("1.7477 mm")),
    Sketcher.Constraint("Distance", 35, Q("1.7478 mm")),
    Sketcher.Constraint("Distance", 36, Q("2.0327 mm")),
    Sketcher.Constraint("Distance", 37, Q("2.0327 mm")),
    Sketcher.Constraint("Distance", 38, Q("2.0326 mm")),
    Sketcher.Constraint("Distance", 39, Q("2.0327 mm")),
    Sketcher.Constraint("Distance", 40, Q("2.0327 mm")),
    Sketcher.Constraint("Distance", 41, Q("2.0327 mm")),
    Sketcher.Constraint("Distance", 42, Q("1.7478 mm")),
    Sketcher.Constraint("Distance", 43, Q("1.7477 mm")),
    Sketcher.Constraint("Distance", 44, Q("1.7478 mm")),
    Sketcher.Constraint("Distance", 45, Q("1.7478 mm")),
    Sketcher.Constraint("Distance", 46, Q("1.7477 mm")),
    Sketcher.Constraint("Distance", 47, Q("1.7478 mm")),
    Sketcher.Constraint("Distance", 48, Q("2.0327 mm")),
    Sketcher.Constraint("Distance", 49, Q("2.0327 mm")),
    Sketcher.Constraint("Distance", 50, Q("2.0326 mm")),
    Sketcher.Constraint("Distance", 51, Q("2.0327 mm")),
    Sketcher.Constraint("Distance", 52, Q("2.0327 mm")),
    Sketcher.Constraint("Distance", 53, Q("2.0327 mm")),
    Sketcher.Constraint("Distance", 54, Q("1.7478 mm")),
    Sketcher.Constraint("Distance", 55, Q("1.7477 mm")),
    Sketcher.Constraint("Distance", 56, Q("1.7478 mm")),
    Sketcher.Constraint("Distance", 57, Q("1.7478 mm")),
    Sketcher.Constraint("Distance", 58, Q("1.7477 mm")),
    Sketcher.Constraint("Distance", 59, Q("1.7478 mm")),
    Sketcher.Constraint("Distance", 60, Q("2.0327 mm")),
    Sketcher.Constraint("Distance", 61, Q("2.0327 mm")),
    Sketcher.Constraint("Distance", 62, Q("2.0326 mm")),
    Sketcher.Constraint("Distance", 63, Q("2.0327 mm")),
    Sketcher.Constraint("Distance", 64, Q("2.0327 mm")),
    Sketcher.Constraint("Distance", 65, Q("2.0327 mm")),
    Sketcher.Constraint("Distance", 66, Q("1.7478 mm")),
    Sketcher.Constraint("Distance", 67, Q("1.7477 mm")),
    Sketcher.Constraint("Distance", 68, Q("1.7478 mm")),
    Sketcher.Constraint("Distance", 69, Q("1.7478 mm")),
    Sketcher.Constraint("Distance", 70, Q("1.7477 mm")),
    Sketcher.Constraint("Distance", 71, Q("1.7478 mm")),
    Sketcher.Constraint("DistanceX", -1, 1, 0, 2, Q("11.3986 mm")),
    Sketcher.Constraint("DistanceY", -1, 1, 0, 2, Q("8.2924 mm")),
    Sketcher.Constraint("DistanceX", -1, 1, 1, 2, Q("10.4712 mm")),
    Sketcher.Constraint("DistanceX", -1, 1, 4, 2, Q("14.5315 mm")),
    Sketcher.Constraint("DistanceX", -1, 1, 6, 2, Q("14.2423 mm")),
    Sketcher.Constraint("DistanceX", -1, 1, 10, 2, Q("11.4976 mm")),
    Sketcher.Constraint("DistanceX", -1, 1, 12, 2, Q("10.4712 mm")),
    Sketcher.Constraint("DistanceY", -1, 1, 12, 2, Q("25.1012 mm")),
    Sketcher.Constraint("DistanceX", -1, 1, 15, 2, Q("14.5315 mm")),
    Sketcher.Constraint("DistanceX", -1, 1, 16, 2, Q("13.4288 mm")),
    Sketcher.Constraint("DistanceX", -1, 1, 18, 2, Q("13.2386 mm")),
    Sketcher.Constraint("DistanceY", -1, 1, 18, 2, Q("23.4154 mm")),
    Sketcher.Constraint("DistanceX", -1, 1, 24, 2, Q("10.4712 mm")),
    Sketcher.Constraint("DistanceY", -1, 1, 24, 2, Q("40.1012 mm")),
    Sketcher.Constraint("DistanceX", -1, 1, 27, 2, Q("14.5315 mm")),
    Sketcher.Constraint("DistanceX", -1, 1, 28, 2, Q("13.4288 mm")),
    Sketcher.Constraint("DistanceX", -1, 1, 30, 2, Q("13.2386 mm")),
    Sketcher.Constraint("DistanceY", -1, 1, 30, 2, Q("38.4154 mm")),
    Sketcher.Constraint("DistanceX", 36, 2, -1, 1, Q("14.5288 mm")),
    Sketcher.Constraint("DistanceY", -1, 1, 36, 2, Q("10.1012 mm")),
    Sketcher.Constraint("DistanceX", 39, 2, -1, 1, Q("10.4685 mm")),
    Sketcher.Constraint("DistanceX", 40, 2, -1, 1, Q("11.5712 mm")),
    Sketcher.Constraint("DistanceX", 42, 2, -1, 1, Q("11.7614 mm")),
    Sketcher.Constraint("DistanceY", -1, 1, 42, 2, Q("8.4154 mm")),
    Sketcher.Constraint("DistanceX", 48, 2, -1, 1, Q("14.5288 mm")),
    Sketcher.Constraint("DistanceY", -1, 1, 48, 2, Q("25.1012 mm")),
    Sketcher.Constraint("DistanceX", 51, 2, -1, 1, Q("10.4685 mm")),
    Sketcher.Constraint("DistanceX", 52, 2, -1, 1, Q("11.5712 mm")),
    Sketcher.Constraint("DistanceX", 54, 2, -1, 1, Q("11.7614 mm")),
    Sketcher.Constraint("DistanceY", -1, 1, 54, 2, Q("23.4154 mm")),
    Sketcher.Constraint("DistanceX", 60, 2, -1, 1, Q("14.5288 mm")),
    Sketcher.Constraint("DistanceY", -1, 1, 60, 2, Q("40.1012 mm")),
    Sketcher.Constraint("DistanceX", 63, 2, -1, 1, Q("10.4685 mm")),
    Sketcher.Constraint("DistanceX", 64, 2, -1, 1, Q("11.5712 mm")),
    Sketcher.Constraint("DistanceX", 66, 2, -1, 1, Q("11.7614 mm")),
    Sketcher.Constraint("DistanceY", -1, 1, 66, 2, Q("38.4154 mm")),
])
pad2 = body.newObject("PartDesign::Pad", "Pad001")
pad2.Profile = sketch4
pad2.Length = 2
pad2.Reversed = True

doc.recompute()
